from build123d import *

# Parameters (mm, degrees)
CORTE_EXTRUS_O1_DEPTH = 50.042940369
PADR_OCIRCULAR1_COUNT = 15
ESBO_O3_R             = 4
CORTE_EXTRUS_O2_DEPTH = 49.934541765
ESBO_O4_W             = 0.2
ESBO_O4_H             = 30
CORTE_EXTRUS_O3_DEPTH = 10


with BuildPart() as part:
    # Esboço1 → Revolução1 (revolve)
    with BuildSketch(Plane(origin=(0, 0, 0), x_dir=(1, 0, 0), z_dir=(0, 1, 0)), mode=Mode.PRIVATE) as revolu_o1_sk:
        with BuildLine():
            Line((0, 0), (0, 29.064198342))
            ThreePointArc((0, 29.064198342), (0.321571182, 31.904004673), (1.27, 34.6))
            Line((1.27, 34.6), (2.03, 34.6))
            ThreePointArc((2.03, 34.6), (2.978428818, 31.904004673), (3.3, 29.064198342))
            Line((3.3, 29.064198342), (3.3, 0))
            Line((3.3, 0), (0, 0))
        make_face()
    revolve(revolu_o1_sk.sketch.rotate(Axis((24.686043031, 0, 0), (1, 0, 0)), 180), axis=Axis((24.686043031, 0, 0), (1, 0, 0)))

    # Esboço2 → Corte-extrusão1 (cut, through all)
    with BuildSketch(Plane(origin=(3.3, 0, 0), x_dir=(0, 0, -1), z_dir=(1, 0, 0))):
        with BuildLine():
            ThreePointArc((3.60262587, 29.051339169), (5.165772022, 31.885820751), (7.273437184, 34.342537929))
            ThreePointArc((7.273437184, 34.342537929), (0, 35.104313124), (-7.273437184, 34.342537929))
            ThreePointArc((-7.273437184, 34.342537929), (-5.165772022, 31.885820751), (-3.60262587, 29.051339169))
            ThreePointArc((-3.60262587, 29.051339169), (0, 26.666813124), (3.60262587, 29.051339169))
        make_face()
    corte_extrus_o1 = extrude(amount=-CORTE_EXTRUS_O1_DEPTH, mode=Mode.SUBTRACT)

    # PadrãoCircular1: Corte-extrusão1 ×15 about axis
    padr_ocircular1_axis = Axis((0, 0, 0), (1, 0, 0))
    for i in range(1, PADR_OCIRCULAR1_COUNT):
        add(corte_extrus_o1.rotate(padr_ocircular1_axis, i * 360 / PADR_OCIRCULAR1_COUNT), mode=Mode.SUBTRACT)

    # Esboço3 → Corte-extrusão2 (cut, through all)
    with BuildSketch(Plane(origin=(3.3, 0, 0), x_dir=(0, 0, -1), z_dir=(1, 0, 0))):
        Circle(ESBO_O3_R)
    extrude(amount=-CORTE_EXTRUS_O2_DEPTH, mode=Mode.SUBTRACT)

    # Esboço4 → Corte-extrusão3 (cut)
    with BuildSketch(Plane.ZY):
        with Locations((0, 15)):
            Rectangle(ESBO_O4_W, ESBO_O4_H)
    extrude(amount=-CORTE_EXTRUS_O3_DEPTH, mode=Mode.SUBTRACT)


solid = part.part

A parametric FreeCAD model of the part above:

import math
import FreeCAD as App
import Part
import Sketcher
Q = App.Units.Quantity


def add_polygon(sketch, points):
    """Adds a closed chain of lines whose ends are joined by coincident constraints."""
    first, n = sketch.GeometryCount, len(points)
    for a, b in zip(points, points[1:] + points[:1]):
        sketch.addGeometry(Part.LineSegment(App.Vector(*a, 0), App.Vector(*b, 0)), False)
    for i in range(n):
        sketch.addConstraint(Sketcher.Constraint("Coincident", first + i, 2, first + (i + 1) % n, 1))

doc = App.newDocument("Part")
body = doc.addObject("PartDesign::Body", "Body")

# Sketch on XZ plane
sketch1 = doc.addObject("Sketcher::SketchObject", "Sketch")
body.addObject(sketch1)
sketch1.AttachmentSupport = (doc.XZ_Plane, [""])
sketch1.MapMode = "FlatFace"
sketch1.addGeometry([
    Part.LineSegment(App.Vector(0, -29.1, 0), App.Vector(0, 0, 0)),  # 0
    Part.LineSegment(App.Vector(0, 0, 0), App.Vector(3.3, 0, 0)),  # 1
    Part.LineSegment(App.Vector(3.3, 0, 0), App.Vector(3.3, -29.1, 0)),  # 2
    Part.ArcOfCircle(Part.Circle(App.Vector(-9.4, -29.1, 0), App.Vector(0, 0, 1), 12.7), math.radians(-26), math.radians(0)),  # 3
    Part.LineSegment(App.Vector(2, -34.6, 0), App.Vector(1.3, -34.6, 0)),  # 4
    Part.ArcOfCircle(Part.Circle(App.Vector(12.7, -29.1, 0), App.Vector(0, 0, 1), 12.7), math.radians(180), math.radians(206)),  # 5
], False)
sketch1.addConstraint([
    Sketcher.Constraint("Coincident", 0, 2, 1, 1),
    Sketcher.Constraint("Coincident", 1, 2, 2, 1),
    Sketcher.Constraint("Tangent", 2, 2, 3, 2),
    Sketcher.Constraint("Coincident", 3, 1, 4, 1),
    Sketcher.Constraint("Coincident", 4, 2, 5, 2),
    Sketcher.Constraint("Tangent", 5, 1, 0, 1),
    Sketcher.Constraint("Vertical", 0),
    Sketcher.Constraint("Horizontal", 1),
    Sketcher.Constraint("Vertical", 2),
    Sketcher.Constraint("Horizontal", 4),
    Sketcher.Constraint("Coincident", 0, 2, -1, 1),
    Sketcher.Constraint("Equal", 3, 5),
    Sketcher.Constraint("Horizontal", 3, 3, 5, 3),
    Sketcher.Constraint("Radius", 3, Q("12.7 mm")),
    Sketcher.Constraint("DistanceX", 1, 1, 1, 2, Q("3.3 mm")),
    Sketcher.Constraint("DistanceX", 4, 2, 4, 1, Q("0.76 mm")),
    Sketcher.Constraint("DistanceY", 3, 1, -1, 1, Q("34.6 mm")),
])
revolution = doc.addObject("PartDesign::Revolution", "Revolution")
body.addObject(revolution)
revolution.Profile = sketch1
revolution.ReferenceAxis = (sketch1, ["H_Axis"])
revolution.Angle = 360

# Sketch on YZ plane
sketch2 = doc.addObject("Sketcher::SketchObject", "Sketch001")
body.addObject(sketch2)
sketch2.AttachmentSupport = (doc.YZ_Plane, [""])
sketch2.MapMode = "FlatFace"
sketch2.AttachmentOffset = App.Placement(App.Vector(0, 0, 3.3), App.Rotation())
sketch2.addGeometry([
    Part.ArcOfCircle(Part.Circle(App.Vector(22.9, -18.2, 0), App.Vector(0, 0, 1), 15.8), math.radians(43), math.radians(67)),
    Part.ArcOfCircle(Part.Circle(App.Vector(0, 0, 0), App.Vector(0, 0, 1), 35.1), math.radians(-12), math.radians(12)),
    Part.ArcOfCircle(Part.Circle(App.Vector(22.9, 18.2, 0), App.Vector(0, 0, 1), 15.8), math.radians(-67), math.radians(-43)),
    Part.ArcOfCircle(Part.Circle(App.Vector(30.6, 0, 0), App.Vector(0, 0, 1), 3.9), math.radians(113), math.radians(247)),
], False)
sketch2.addConstraint([
    Sketcher.Constraint("Coincident", 0, 1, 1, 1),
    Sketcher.Constraint("Coincident", 1, 2, 2, 2),
    Sketcher.Constraint("Tangent", 2, 1, 3, 1),
    Sketcher.Constraint("Tangent", 3, 2, 0, 2),
    Sketcher.Constraint("Coincident", 1, 3, -1, 1),
    Sketcher.Constraint("Equal", 0, 2),
    Sketcher.Constraint("Symmetric", 0, 3, 2, 3, -1),
    Sketcher.Constraint("Radius", 0, Q("15.81 mm")),
    Sketcher.Constraint("Radius", 3, Q("3.91375 mm")),
    Sketcher.Constraint("Radius", 1, Q("35.104313 mm")),
    Sketcher.Constraint("DistanceX", 2, 1, 1, 2, Q("5.291199 mm")),
    Sketcher.Constraint("DistanceX", -1, 1, 0, 3, Q("22.87388 mm")),
])
pocket1 = doc.addObject("PartDesign::Pocket", "Pocket")
body.addObject(pocket1)
pocket1.Profile = sketch2
pocket1.Type = "ThroughAll"
doc.recompute()

polarpattern = doc.addObject("PartDesign::PolarPattern", "PolarPattern")
body.addObject(polarpattern)
polarpattern.Originals = [pocket1]
polarpattern.Axis = (doc.X_Axis, [""])
polarpattern.Angle = 360
polarpattern.Occurrences = 15
body.Tip = polarpattern

# Sketch on YZ plane
sketch3 = doc.addObject("Sketcher::SketchObject", "Sketch002")
body.addObject(sketch3)
sketch3.AttachmentSupport = (doc.YZ_Plane, [""])
sketch3.MapMode = "FlatFace"
sketch3.AttachmentOffset = App.Placement(App.Vector(0, 0, 3.3), App.Rotation())
sketch3.addGeometry(Part.Circle(App.Vector(0, 0, 0), App.Vector(0, 0, 1), 4), False)
sketch3.addConstraint([
    Sketcher.Constraint("Coincident", 0, 3, -1, 1),
    Sketcher.Constraint("Diameter", 0, Q("8 mm")),
])
pocket2 = doc.addObject("PartDesign::Pocket", "Pocket001")
body.addObject(pocket2)
pocket2.Profile = sketch3
pocket2.Type = "ThroughAll"

# Sketch on YZ plane
sketch4 = doc.addObject("Sketcher::SketchObject", "Sketch003")
body.addObject(sketch4)
sketch4.AttachmentSupport = (doc.YZ_Plane, [""])
sketch4.MapMode = "FlatFace"
add_polygon(sketch4, [(30, -0.1), (0, -0.1), (0, 0.1), (30, 0.1)])  # lines 0-3
sketch4.addConstraint([
    Sketcher.Constraint("Horizontal", 0),
    Sketcher.Constraint("Vertical", 1),
    Sketcher.Constraint("Horizontal", 2),
    Sketcher.Constraint("Vertical", 3),
    Sketcher.Constraint("Symmetric", 0, 2, 1, 2, -1, 1),
    Sketcher.Constraint("DistanceX", 0, 2, 0, 1, Q("30 mm")),
    Sketcher.Constraint("DistanceY", 1, 1, 1, 2, Q("0.2 mm")),
])
pocket3 = doc.addObject("PartDesign::Pocket", "Pocket002")
body.addObject(pocket3)
pocket3.Profile = sketch4
pocket3.Length = 10
pocket3.Reversed = True

doc.recompute()
